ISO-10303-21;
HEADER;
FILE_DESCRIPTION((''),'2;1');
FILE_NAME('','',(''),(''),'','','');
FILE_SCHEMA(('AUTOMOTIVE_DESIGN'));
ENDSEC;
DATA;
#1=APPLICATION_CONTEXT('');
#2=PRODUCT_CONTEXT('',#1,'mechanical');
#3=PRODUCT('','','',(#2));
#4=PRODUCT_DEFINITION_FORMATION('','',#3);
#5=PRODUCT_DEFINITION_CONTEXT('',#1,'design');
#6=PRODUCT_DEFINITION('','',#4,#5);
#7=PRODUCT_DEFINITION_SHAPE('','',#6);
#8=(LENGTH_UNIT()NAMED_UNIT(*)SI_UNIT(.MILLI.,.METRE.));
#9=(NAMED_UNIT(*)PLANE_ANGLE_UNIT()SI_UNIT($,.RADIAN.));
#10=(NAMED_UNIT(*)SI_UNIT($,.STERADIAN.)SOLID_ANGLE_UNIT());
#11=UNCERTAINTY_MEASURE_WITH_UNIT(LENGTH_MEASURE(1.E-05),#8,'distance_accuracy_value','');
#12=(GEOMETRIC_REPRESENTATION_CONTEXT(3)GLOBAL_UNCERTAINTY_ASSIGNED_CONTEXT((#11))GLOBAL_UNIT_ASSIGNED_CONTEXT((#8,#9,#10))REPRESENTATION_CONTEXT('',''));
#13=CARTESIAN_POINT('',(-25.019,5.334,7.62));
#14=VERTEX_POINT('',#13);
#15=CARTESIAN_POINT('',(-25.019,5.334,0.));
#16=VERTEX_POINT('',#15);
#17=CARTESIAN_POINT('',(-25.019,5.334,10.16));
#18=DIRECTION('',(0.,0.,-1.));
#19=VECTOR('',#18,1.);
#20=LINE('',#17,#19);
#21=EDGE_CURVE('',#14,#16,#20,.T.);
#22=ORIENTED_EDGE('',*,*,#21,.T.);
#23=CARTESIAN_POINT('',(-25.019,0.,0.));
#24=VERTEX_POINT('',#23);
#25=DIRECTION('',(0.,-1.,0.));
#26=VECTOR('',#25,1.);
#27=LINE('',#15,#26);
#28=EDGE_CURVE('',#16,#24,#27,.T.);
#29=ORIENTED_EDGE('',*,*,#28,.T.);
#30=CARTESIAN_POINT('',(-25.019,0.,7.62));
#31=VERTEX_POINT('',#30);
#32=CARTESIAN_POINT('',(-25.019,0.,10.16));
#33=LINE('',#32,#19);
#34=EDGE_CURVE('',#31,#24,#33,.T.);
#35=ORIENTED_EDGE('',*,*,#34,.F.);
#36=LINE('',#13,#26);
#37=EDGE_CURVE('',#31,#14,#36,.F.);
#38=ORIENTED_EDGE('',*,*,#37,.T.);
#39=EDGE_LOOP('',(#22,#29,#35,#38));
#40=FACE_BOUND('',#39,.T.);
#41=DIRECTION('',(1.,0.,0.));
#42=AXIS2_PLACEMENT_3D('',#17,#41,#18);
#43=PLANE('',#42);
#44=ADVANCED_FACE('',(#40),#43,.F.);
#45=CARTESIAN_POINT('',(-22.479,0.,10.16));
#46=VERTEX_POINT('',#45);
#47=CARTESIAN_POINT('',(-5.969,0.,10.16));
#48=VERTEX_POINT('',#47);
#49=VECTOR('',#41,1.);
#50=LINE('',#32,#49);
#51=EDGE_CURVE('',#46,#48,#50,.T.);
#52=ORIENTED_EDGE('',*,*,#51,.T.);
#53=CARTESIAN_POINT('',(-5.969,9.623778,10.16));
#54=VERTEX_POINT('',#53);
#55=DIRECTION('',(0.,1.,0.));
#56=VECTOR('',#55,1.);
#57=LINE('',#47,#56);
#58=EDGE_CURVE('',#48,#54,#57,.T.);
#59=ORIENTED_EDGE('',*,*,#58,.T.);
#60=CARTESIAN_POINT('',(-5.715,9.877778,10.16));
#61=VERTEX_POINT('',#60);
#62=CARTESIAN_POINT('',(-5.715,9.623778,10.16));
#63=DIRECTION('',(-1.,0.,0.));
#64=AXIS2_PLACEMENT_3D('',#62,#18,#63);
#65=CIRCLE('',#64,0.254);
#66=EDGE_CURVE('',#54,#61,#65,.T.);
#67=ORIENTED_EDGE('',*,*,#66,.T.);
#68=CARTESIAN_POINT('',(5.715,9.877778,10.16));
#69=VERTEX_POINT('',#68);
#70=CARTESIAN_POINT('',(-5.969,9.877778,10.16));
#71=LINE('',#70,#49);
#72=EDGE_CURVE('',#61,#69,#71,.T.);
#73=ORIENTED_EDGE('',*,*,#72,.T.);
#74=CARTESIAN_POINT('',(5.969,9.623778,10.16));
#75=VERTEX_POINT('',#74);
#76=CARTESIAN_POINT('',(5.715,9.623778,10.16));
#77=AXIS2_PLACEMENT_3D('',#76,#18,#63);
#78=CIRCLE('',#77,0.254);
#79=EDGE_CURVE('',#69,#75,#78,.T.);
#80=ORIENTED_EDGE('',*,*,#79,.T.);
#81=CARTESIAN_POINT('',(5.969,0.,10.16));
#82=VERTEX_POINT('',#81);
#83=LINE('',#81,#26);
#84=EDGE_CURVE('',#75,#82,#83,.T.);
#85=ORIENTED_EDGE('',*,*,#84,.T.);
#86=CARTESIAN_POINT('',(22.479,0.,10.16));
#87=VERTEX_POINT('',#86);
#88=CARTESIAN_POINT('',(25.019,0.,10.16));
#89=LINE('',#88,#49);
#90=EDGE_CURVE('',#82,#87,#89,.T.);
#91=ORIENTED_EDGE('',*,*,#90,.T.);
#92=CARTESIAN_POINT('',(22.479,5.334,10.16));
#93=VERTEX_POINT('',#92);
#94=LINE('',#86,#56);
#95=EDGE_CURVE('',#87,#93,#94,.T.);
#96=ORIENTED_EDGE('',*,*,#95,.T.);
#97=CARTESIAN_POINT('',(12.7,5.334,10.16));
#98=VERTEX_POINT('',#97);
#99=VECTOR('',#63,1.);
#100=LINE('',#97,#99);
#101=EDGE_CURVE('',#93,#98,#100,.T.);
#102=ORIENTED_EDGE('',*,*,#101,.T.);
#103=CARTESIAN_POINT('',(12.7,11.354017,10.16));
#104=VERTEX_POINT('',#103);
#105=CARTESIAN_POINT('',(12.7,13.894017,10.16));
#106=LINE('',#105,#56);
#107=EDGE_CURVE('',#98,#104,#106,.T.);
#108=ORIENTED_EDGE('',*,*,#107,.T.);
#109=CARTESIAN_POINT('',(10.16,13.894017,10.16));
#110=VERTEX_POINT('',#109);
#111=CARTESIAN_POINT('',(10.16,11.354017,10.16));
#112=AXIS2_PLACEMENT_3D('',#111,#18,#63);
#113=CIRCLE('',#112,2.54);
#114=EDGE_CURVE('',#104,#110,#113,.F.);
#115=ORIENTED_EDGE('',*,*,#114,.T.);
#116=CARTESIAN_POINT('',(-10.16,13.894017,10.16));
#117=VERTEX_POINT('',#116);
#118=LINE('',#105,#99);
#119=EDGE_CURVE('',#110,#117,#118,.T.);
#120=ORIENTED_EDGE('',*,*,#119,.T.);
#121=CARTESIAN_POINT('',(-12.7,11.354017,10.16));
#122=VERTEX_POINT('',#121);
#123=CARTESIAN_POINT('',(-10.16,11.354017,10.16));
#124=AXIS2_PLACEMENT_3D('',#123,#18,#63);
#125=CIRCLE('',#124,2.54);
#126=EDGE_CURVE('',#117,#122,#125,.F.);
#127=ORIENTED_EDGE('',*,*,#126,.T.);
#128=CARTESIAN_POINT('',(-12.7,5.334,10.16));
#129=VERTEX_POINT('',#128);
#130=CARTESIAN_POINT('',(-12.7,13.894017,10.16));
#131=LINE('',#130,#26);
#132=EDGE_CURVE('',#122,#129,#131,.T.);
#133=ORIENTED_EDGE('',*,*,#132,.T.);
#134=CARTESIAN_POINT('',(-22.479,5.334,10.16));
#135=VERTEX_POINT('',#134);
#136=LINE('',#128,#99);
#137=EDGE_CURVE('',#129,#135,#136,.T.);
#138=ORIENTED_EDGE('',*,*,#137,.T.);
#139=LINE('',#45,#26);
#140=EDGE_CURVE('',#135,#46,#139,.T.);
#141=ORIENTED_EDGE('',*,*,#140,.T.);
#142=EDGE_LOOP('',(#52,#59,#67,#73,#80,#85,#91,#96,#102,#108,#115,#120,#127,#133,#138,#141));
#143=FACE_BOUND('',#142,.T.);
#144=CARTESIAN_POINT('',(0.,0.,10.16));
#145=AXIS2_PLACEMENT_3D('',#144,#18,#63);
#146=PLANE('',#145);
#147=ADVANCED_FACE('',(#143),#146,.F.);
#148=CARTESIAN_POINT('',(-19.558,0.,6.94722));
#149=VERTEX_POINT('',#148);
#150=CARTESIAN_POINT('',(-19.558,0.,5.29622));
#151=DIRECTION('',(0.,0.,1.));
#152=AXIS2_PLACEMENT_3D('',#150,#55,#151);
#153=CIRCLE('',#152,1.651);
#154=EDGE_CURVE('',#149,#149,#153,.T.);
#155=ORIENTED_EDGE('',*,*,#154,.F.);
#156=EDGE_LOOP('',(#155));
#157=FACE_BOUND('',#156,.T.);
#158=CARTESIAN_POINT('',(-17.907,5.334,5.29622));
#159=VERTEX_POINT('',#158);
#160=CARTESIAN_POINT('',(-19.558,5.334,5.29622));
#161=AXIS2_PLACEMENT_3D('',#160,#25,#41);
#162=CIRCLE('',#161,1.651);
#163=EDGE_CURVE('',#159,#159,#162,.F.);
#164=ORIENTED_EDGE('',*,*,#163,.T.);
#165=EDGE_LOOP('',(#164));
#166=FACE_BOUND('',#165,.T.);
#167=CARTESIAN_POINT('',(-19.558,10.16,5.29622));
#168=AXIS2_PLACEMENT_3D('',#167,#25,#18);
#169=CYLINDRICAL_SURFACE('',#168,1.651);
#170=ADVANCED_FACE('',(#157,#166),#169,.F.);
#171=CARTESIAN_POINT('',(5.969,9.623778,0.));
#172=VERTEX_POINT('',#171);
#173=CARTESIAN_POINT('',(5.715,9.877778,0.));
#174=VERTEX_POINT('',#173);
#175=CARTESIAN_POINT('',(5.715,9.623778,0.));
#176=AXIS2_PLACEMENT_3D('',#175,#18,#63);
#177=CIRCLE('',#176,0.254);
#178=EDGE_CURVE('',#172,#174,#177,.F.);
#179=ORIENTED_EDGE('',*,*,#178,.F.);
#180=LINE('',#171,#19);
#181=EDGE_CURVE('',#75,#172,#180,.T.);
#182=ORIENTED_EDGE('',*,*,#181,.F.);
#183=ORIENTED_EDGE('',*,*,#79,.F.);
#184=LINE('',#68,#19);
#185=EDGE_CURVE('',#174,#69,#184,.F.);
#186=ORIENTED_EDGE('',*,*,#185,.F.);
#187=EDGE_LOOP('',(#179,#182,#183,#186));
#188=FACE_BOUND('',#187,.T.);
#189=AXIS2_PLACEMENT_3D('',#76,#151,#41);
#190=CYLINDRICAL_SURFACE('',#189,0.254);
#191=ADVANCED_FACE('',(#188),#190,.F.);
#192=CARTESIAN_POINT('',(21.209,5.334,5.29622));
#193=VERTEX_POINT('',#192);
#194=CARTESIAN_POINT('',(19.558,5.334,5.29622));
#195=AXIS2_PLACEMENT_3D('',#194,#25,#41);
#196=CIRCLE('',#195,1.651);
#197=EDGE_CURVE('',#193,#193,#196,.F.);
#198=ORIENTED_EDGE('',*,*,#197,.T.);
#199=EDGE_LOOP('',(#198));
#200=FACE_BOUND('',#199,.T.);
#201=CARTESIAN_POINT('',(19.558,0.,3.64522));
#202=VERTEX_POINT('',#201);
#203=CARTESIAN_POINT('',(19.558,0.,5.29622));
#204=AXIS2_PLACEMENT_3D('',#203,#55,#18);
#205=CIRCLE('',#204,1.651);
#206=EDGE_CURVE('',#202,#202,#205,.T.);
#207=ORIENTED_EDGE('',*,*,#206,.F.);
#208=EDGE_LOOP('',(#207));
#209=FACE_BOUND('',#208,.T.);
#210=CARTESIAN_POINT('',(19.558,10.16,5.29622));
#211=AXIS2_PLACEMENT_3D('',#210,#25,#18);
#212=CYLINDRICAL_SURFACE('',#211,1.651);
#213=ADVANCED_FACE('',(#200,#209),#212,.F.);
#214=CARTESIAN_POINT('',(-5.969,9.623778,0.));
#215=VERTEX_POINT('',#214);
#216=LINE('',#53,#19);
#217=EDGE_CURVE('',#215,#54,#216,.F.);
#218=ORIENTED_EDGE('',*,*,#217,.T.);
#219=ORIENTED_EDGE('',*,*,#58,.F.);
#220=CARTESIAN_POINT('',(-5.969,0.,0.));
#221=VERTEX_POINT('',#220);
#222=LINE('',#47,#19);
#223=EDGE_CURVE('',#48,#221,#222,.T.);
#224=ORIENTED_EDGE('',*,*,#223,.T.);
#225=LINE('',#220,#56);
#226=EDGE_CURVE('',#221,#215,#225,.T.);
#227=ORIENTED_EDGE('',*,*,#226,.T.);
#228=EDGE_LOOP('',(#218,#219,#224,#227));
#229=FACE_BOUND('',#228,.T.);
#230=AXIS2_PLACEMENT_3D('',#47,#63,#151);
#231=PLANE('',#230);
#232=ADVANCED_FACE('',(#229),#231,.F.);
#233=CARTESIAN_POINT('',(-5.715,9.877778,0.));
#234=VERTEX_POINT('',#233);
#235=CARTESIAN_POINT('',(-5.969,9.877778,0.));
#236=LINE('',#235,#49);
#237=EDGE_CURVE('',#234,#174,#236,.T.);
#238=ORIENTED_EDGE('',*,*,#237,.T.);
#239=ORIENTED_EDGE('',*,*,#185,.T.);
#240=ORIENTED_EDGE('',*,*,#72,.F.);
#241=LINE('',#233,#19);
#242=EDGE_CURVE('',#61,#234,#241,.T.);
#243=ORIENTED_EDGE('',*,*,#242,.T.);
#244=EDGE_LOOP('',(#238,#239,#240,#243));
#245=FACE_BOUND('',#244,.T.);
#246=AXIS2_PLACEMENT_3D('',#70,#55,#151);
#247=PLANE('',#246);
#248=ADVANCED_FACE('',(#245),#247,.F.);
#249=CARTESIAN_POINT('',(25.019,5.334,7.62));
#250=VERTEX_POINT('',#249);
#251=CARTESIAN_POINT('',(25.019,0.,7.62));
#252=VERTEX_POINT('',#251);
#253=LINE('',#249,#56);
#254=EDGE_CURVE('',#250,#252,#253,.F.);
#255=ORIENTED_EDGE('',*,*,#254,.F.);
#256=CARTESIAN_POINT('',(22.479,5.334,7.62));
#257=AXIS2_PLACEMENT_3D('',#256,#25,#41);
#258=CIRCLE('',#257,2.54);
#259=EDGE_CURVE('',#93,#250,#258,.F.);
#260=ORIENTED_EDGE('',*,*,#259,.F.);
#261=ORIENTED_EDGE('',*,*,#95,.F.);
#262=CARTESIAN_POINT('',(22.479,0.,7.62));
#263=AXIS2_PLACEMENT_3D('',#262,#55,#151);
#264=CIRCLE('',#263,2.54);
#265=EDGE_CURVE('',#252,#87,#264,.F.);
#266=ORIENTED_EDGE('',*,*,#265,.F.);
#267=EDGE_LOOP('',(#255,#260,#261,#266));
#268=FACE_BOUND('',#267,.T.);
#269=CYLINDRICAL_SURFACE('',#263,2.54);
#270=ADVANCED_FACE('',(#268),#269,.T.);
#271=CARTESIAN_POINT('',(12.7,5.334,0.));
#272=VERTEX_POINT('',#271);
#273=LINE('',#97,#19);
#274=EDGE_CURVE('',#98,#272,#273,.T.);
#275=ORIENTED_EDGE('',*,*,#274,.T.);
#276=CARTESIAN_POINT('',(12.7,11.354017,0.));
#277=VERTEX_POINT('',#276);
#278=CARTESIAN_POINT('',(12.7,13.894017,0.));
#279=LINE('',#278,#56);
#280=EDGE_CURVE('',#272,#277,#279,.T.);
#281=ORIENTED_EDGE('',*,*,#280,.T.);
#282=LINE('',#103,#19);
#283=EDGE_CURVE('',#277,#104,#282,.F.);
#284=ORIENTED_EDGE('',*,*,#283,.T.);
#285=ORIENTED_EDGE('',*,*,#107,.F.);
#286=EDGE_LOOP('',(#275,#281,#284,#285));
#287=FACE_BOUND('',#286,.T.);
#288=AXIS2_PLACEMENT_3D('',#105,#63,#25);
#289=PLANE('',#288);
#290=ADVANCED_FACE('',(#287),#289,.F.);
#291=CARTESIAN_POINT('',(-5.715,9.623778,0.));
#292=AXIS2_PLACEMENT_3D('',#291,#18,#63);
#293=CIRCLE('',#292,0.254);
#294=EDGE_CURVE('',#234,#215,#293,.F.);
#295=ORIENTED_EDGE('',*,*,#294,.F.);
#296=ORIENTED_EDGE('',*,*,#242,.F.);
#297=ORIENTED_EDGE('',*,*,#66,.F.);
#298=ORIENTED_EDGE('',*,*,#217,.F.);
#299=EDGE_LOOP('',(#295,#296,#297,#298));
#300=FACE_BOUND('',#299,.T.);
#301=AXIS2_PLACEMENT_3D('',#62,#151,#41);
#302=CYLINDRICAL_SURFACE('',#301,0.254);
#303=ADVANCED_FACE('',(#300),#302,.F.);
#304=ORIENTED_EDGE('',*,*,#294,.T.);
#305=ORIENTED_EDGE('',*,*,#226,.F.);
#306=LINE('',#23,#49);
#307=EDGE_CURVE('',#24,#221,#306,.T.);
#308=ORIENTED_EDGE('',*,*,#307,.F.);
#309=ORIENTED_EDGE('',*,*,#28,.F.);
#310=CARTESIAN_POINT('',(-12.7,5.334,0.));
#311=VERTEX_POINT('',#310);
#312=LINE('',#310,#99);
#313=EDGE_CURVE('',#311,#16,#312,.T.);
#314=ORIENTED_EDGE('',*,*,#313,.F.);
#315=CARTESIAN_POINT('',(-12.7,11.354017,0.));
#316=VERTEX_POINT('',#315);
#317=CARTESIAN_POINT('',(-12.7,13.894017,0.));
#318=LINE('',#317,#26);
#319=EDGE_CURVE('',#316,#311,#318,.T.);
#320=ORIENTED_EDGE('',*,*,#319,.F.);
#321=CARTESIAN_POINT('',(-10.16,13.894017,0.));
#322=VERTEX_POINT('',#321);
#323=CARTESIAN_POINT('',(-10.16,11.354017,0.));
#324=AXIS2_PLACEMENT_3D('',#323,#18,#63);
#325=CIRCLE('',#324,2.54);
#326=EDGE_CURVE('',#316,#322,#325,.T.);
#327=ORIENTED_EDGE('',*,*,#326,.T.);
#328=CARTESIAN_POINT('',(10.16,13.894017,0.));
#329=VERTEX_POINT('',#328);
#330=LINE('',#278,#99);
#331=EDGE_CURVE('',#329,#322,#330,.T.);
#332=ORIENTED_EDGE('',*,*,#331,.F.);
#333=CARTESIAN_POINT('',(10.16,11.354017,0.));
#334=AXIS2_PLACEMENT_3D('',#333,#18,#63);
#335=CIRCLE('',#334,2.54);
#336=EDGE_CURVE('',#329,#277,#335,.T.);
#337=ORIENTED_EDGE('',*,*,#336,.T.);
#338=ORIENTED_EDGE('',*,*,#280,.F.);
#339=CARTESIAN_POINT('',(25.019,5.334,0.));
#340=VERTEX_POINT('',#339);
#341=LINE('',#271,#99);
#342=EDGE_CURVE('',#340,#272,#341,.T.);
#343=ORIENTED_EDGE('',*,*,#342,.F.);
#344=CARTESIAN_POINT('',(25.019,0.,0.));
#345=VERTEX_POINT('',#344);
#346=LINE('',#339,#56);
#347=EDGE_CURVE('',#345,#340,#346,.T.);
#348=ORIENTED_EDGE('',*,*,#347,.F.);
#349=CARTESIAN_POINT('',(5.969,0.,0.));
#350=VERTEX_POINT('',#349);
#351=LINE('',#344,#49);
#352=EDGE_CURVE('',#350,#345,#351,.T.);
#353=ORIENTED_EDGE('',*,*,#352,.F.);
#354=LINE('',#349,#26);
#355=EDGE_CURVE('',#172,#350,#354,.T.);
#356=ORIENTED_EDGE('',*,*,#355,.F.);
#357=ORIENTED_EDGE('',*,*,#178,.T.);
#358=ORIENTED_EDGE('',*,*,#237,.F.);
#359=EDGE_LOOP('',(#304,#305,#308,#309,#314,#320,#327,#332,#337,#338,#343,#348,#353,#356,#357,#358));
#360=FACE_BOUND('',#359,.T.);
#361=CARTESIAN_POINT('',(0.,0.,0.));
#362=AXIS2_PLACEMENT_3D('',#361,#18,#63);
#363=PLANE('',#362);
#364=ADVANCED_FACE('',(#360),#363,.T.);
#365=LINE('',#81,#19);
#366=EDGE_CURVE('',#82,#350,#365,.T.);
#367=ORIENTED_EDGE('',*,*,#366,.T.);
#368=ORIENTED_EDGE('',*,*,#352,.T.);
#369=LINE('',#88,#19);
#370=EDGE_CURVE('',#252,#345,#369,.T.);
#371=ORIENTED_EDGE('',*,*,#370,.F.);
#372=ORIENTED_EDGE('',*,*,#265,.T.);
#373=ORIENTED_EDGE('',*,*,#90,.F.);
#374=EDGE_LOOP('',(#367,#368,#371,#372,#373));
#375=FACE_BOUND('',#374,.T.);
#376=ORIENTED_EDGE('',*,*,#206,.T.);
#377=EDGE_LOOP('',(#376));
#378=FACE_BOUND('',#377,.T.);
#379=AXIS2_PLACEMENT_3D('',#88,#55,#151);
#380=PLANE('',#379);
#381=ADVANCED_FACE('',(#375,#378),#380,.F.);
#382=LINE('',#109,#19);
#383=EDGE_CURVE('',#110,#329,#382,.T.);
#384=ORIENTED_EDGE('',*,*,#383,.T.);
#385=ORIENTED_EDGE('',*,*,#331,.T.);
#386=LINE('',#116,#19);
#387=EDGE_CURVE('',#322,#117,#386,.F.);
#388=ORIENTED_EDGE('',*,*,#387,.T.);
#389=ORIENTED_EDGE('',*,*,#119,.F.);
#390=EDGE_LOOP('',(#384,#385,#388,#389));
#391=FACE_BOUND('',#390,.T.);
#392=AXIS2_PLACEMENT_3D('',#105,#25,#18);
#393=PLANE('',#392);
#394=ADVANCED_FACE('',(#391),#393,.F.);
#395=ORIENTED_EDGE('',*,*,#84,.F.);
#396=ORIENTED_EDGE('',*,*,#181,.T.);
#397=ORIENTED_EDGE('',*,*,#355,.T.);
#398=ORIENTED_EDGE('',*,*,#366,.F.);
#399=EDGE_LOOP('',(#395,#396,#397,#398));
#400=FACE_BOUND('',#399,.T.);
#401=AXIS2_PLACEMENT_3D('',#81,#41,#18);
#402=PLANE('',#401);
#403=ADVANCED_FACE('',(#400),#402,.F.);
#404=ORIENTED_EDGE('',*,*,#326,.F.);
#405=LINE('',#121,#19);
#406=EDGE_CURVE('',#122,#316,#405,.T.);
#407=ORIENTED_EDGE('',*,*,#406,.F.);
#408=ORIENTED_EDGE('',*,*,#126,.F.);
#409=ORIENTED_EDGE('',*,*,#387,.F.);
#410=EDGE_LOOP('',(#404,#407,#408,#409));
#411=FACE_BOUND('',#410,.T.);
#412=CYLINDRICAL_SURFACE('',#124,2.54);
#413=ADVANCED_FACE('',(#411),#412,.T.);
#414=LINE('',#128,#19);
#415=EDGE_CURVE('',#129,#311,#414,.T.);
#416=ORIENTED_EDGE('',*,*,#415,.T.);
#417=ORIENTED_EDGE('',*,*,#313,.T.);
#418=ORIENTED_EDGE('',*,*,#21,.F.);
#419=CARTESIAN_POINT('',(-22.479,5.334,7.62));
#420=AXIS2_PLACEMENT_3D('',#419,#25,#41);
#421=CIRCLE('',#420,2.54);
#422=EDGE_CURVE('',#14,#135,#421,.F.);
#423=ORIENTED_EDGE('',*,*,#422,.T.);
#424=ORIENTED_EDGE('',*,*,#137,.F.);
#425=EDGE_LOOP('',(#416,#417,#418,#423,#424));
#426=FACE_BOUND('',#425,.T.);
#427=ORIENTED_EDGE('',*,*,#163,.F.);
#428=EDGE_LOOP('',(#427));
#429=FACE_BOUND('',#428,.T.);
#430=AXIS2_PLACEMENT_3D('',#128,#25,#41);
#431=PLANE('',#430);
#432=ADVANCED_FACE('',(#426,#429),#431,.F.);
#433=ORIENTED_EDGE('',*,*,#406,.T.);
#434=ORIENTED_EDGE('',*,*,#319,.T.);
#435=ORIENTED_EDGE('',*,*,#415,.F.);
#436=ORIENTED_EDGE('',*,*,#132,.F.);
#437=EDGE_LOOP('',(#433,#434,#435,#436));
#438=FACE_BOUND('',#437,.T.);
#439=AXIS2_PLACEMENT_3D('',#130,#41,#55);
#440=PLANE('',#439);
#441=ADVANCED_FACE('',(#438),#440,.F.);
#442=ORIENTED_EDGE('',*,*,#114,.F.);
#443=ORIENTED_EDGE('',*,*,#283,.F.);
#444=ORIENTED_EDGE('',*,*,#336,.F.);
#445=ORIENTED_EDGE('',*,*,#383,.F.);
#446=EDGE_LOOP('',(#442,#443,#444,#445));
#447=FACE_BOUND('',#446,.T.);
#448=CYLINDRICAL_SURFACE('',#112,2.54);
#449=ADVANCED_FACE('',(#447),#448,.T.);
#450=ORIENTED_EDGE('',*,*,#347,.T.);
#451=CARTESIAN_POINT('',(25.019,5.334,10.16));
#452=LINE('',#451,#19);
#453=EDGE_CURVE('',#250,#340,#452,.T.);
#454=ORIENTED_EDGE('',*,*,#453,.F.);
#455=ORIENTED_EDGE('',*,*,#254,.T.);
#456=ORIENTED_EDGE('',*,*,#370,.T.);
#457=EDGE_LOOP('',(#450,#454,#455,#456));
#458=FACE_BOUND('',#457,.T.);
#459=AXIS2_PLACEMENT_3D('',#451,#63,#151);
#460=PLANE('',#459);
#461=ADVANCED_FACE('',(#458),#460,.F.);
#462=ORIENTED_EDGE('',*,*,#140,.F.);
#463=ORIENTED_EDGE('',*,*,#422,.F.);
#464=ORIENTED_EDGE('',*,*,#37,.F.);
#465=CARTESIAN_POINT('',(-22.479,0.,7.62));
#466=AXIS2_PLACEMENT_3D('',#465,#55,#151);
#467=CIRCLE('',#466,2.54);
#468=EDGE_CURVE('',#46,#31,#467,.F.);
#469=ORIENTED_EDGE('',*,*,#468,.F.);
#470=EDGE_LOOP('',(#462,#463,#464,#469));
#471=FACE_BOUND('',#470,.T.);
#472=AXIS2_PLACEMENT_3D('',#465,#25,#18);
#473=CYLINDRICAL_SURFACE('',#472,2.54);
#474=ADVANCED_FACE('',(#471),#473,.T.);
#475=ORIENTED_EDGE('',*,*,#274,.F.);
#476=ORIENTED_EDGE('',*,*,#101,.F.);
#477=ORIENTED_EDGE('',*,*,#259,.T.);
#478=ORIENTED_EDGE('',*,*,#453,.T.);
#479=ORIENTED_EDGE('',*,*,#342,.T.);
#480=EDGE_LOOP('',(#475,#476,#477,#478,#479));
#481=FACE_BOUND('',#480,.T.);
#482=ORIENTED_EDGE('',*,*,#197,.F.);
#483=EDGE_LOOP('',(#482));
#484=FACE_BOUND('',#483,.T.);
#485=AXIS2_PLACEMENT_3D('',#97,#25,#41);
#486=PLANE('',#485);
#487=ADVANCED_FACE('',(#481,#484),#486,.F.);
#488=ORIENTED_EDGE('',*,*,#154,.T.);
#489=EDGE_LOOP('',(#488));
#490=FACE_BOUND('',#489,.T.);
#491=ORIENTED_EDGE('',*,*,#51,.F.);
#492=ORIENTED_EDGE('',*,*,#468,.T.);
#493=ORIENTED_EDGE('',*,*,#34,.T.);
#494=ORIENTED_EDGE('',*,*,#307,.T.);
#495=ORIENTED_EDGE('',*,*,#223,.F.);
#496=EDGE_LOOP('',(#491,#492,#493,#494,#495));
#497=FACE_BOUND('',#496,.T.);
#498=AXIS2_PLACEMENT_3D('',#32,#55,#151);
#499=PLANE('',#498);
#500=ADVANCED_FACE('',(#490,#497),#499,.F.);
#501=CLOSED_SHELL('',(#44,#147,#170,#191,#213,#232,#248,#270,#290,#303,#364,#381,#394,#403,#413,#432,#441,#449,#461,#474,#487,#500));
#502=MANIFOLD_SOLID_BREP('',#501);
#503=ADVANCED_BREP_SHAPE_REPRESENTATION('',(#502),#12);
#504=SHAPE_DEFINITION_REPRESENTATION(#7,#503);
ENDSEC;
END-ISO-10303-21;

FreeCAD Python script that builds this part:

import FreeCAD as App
import Part
import Sketcher
from FreeCAD import Vector
Q = App.Units.Quantity


def edges_at(feature, points):
    """Names of the edges that pass closest to the given points."""
    edges = feature.Shape.Edges
    near = lambda p: min(range(len(edges)), key=lambda i: edges[i].distToShape(Part.Vertex(*p))[0])
    return sorted({f"Edge{near(p) + 1}" for p in points})


def add_polygon(sketch, points):
    """Adds a closed chain of lines whose ends are joined by coincident constraints."""
    first, n = sketch.GeometryCount, len(points)
    for a, b in zip(points, points[1:] + points[:1]):
        sketch.addGeometry(Part.LineSegment(App.Vector(*a, 0), App.Vector(*b, 0)), False)
    for i in range(n):
        sketch.addConstraint(Sketcher.Constraint("Coincident", first + i, 2, first + (i + 1) % n, 1))

doc = App.newDocument("Part")
body = doc.addObject("PartDesign::Body", "Body")

sketch1 = body.newObject("Sketcher::SketchObject", "Sketch")
sketch1.AttachmentSupport = (doc.getObject("XY_Plane"), [""])
sketch1.MapMode = "FlatFace"
add_polygon(sketch1, [(13, 14), (-13, 14), (-13, 5), (-25, 5), (-25, 0), (-6, 0), (-6, 10), (6, 10), (6, 0), (25, 0), (25, 5), (13, 5)])
sketch1.addConstraint([
    Sketcher.Constraint("Horizontal", 0),
    Sketcher.Constraint("Vertical", 1),
    Sketcher.Constraint("Horizontal", 2),
    Sketcher.Constraint("Vertical", 3),
    Sketcher.Constraint("Horizontal", 4),
    Sketcher.Constraint("Vertical", 5),
    Sketcher.Constraint("Horizontal", 6),
    Sketcher.Constraint("Vertical", 7),
    Sketcher.Constraint("Horizontal", 8),
    Sketcher.Constraint("Vertical", 9),
    Sketcher.Constraint("Horizontal", 10),
    Sketcher.Constraint("Vertical", 11),
    Sketcher.Constraint("Symmetric", 4, 2, 7, 2, -1, 1),
    Sketcher.Constraint("Symmetric", 3, 2, 8, 2, -2),
    Sketcher.Constraint("Symmetric", 1, 2, 10, 2, -2),
    Sketcher.Constraint("DistanceX", 0, 2, 0, 1, Q("1 in")),
    Sketcher.Constraint("DistanceX", 4, 1, 4, 2, Q("0.75 in")),
    Sketcher.Constraint("DistanceX", 6, 1, 6, 2, Q("0.47 in")),
    Sketcher.Constraint("DistanceY", 3, 2, 3, 1, Q("0.21 in")),
    Sketcher.Constraint("DistanceY", 1, 2, 1, 1, Q("8.560017 mm")),
    Sketcher.Constraint("DistanceY", 5, 1, 5, 2, Q("9.877778 mm")),
])
pad1 = body.newObject("PartDesign::Pad", "Pad")
pad1.Profile = sketch1
pad1.Length = Q("0.4 in")
doc.recompute()

fillet = body.newObject("PartDesign::Fillet", "Fillet")
fillet.Base = (pad1, edges_at(pad1, [
    (-12.7, 13.894, 5.08),
    (12.7, 13.894, 5.08),
    (-25.019, 2.667, 10.16),
    (25.019, 2.667, 10.16),
]))
fillet.Radius = Q("0.1 in")

sketch2 = body.newObject("Sketcher::SketchObject", "Sketch001")
sketch2.AttachmentSupport = (doc.getObject("XZ_Plane"), [""])
sketch2.MapMode = "FlatFace"
sketch2.addGeometry([
    Part.Circle(Vector(-19.6, 5.3, 0), Vector(0, 0, 1), 1.7),
    Part.Circle(Vector(19.6, 5.3, 0), Vector(0, 0, 1), 1.7),
], False)
sketch2.addConstraint([
    Sketcher.Constraint("Equal", 0, 1),
    Sketcher.Constraint("Symmetric", 0, 3, 1, 3, -2),
    Sketcher.Constraint("Diameter", 0, Q("0.13 in")),
    Sketcher.Constraint("DistanceX", 0, 3, -1, 1, Q("0.77 in")),
    Sketcher.Constraint("DistanceY", -1, 1, 0, 3, Q("5.29622 mm")),
])
pocket1 = body.newObject("PartDesign::Pocket", "Pocket")
pocket1.Profile = sketch2
pocket1.Length = Q("0.4 in")
doc.recompute()

fillet2 = body.newObject("PartDesign::Fillet", "Fillet001")
fillet2.Base = (pocket1, edges_at(pocket1, [(5.969, 9.878, 5.08), (-5.969, 9.878, 5.08)]))
fillet2.Radius = Q("0.01 in")

doc.recompute()
